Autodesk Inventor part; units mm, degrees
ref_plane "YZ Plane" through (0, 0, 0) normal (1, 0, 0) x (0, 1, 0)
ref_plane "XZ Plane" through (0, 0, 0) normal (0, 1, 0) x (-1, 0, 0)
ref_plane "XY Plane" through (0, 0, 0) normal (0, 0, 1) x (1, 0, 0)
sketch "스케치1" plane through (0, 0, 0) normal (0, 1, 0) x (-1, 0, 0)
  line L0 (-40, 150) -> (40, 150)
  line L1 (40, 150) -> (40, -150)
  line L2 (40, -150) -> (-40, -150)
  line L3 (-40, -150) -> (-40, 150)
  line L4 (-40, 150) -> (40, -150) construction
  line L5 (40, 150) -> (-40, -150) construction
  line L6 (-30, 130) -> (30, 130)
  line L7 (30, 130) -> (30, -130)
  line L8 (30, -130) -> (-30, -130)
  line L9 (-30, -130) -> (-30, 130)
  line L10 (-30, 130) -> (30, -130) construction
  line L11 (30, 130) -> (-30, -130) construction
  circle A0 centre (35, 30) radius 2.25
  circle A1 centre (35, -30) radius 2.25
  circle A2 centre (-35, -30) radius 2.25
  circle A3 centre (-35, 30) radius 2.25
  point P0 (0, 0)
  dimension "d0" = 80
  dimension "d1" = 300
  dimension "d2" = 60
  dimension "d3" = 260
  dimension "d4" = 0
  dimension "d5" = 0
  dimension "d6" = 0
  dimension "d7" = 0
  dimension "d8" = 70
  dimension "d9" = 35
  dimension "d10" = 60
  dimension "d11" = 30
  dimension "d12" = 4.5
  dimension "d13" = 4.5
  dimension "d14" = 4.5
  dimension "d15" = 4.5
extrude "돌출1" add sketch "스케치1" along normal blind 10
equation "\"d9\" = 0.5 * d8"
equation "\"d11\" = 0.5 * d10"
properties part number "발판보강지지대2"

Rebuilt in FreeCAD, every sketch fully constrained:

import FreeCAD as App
import Part
import Sketcher

V = App.Vector

doc = App.newDocument("Part")
params = doc.addObject("Spreadsheet::Sheet", "Params")
for row, (alias, value) in enumerate([
    ("sketch1_diameter", "4.5 mm"),
    ("sketch1_width", "80 mm"),
    ("sketch1_width2", "60 mm"),
    ("sketch1_height", "300 mm"),
    ("sketch1_height2", "260 mm"),
    ("pad1_length", "10 mm"),
], start=1):
    params.set(f"A{row}", alias)
    params.set(f"B{row}", "=" + value)
    params.setAlias(f"B{row}", alias)

body = doc.addObject("PartDesign::Body", "Body")

# Sketch on XZ plane
sketch1 = body.newObject("Sketcher::SketchObject", "Sketch")
sketch1.AttachmentSupport = (doc.getObject("XZ_Plane"), [""])
sketch1.MapMode = "FlatFace"
sketch1.addGeometry([
    Part.LineSegment(V(-40, 150, 0), V(40, 150, 0)),  # 0
    Part.LineSegment(V(40, 150, 0), V(40, -150, 0)),  # 1
    Part.LineSegment(V(40, -150, 0), V(-40, -150, 0)),  # 2
    Part.LineSegment(V(-40, -150, 0), V(-40, 150, 0)),  # 3
    Part.Circle(V(35, -30, 0), V(0, 0, 1), 2.25),  # 4
    Part.Circle(V(-35, -30, 0), V(0, 0, 1), 2.25),  # 5
    Part.Circle(V(35, 30, 0), V(0, 0, 1), 2.25),  # 6
    Part.LineSegment(V(30, -130, 0), V(30, 130, 0)),  # 7
    Part.LineSegment(V(30, 130, 0), V(-30, 130, 0)),  # 8
    Part.LineSegment(V(-30, 130, 0), V(-30, -130, 0)),  # 9
    Part.LineSegment(V(-30, -130, 0), V(30, -130, 0)),  # 10
    Part.Circle(V(-35, 30, 0), V(0, 0, 1), 2.25),  # 11
], False)
sketch1.addConstraint([
    Sketcher.Constraint("Coincident", 0, 2, 1, 1),
    Sketcher.Constraint("Coincident", 1, 2, 2, 1),
    Sketcher.Constraint("Coincident", 2, 2, 3, 1),
    Sketcher.Constraint("Coincident", 3, 2, 0, 1),
    Sketcher.Constraint("Coincident", 7, 2, 8, 1),
    Sketcher.Constraint("Coincident", 8, 2, 9, 1),
    Sketcher.Constraint("Coincident", 9, 2, 10, 1),
    Sketcher.Constraint("Coincident", 10, 2, 7, 1),
    Sketcher.Constraint("Horizontal", 0),
    Sketcher.Constraint("Vertical", 1),
    Sketcher.Constraint("Horizontal", 2),
    Sketcher.Constraint("Vertical", 3),
    Sketcher.Constraint("Vertical", 7),
    Sketcher.Constraint("Horizontal", 8),
    Sketcher.Constraint("Vertical", 9),
    Sketcher.Constraint("Horizontal", 10),
    Sketcher.Constraint("Equal", 4, 5),
    Sketcher.Constraint("Equal", 5, 6),
    Sketcher.Constraint("Equal", 6, 11),
    Sketcher.Constraint("Symmetric", 5, 3, 6, 3, -1, 1),
    Sketcher.Constraint("Symmetric", 4, 3, 11, 3, -1, 1),
    Sketcher.Constraint("Symmetric", 0, 2, 2, 2, -1, 1),
    Sketcher.Constraint("Symmetric", 7, 2, 9, 2, -1, 1),
    Sketcher.Constraint("Symmetric", 4, 3, 5, 3, -2),
    Sketcher.Constraint("Diameter", 4, 4.5),
    Sketcher.Constraint("DistanceX", 0, 1, 0, 2, 80.0),
    Sketcher.Constraint("DistanceX", 8, 2, 8, 1, 60.0),
    Sketcher.Constraint("DistanceY", 1, 2, 1, 1, 300.0),
    Sketcher.Constraint("DistanceY", 7, 1, 7, 2, 260.0),
    Sketcher.Constraint("DistanceX", -1, 1, 4, 3, 35.0),
    Sketcher.Constraint("DistanceY", 4, 3, -1, 1, 30.0),
])
sketch1.setExpression("Constraints[24]", "Params.sketch1_diameter")
sketch1.setExpression("Constraints[25]", "Params.sketch1_width")
sketch1.setExpression("Constraints[26]", "Params.sketch1_width2")
sketch1.setExpression("Constraints[27]", "Params.sketch1_height")
sketch1.setExpression("Constraints[28]", "Params.sketch1_height2")
pad1 = body.newObject("PartDesign::Pad", "Pad")
pad1.Profile = sketch1
pad1.setExpression("Length", "Params.pad1_length")
pad1.Reversed = True

doc.recompute()
